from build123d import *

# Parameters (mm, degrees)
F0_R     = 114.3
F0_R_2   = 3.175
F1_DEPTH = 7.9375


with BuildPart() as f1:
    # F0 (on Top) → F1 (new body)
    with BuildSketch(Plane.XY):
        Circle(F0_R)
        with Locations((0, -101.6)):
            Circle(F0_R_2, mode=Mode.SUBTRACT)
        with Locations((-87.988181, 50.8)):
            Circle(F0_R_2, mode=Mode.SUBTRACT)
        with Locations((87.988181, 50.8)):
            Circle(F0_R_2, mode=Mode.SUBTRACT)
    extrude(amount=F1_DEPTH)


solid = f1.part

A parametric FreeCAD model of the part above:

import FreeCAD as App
import Part
import Sketcher

V = App.Vector
Q = App.Units.Quantity

doc = App.newDocument("Part")
body = doc.addObject("PartDesign::Body", "Body")

sketch1 = body.newObject("Sketcher::SketchObject", "Sketch")
sketch1.AttachmentSupport = (doc.getObject("XY_Plane"), [""])
sketch1.MapMode = "FlatFace"
sketch1.addGeometry([
    Part.Circle(V(0, 0, 0), V(0, 0, 1), 114.3),
    Part.Circle(V(0, -101.6, 0), V(0, 0, 1), 3.2),
    Part.Circle(V(-88, 50.8, 0), V(0, 0, 1), 3.2),
    Part.Circle(V(88, 50.8, 0), V(0, 0, 1), 3.2),
], False)
sketch1.addConstraint([
    Sketcher.Constraint("Coincident", 0, 3, -1, 1),
    Sketcher.Constraint("Equal", 1, 2),
    Sketcher.Constraint("Equal", 2, 3),
    Sketcher.Constraint("Symmetric", 2, 3, 3, 3, -2),
    Sketcher.Constraint("PointOnObject", 1, 3, -2),
    Sketcher.Constraint("Diameter", 0, Q("9 in")),
    Sketcher.Constraint("Diameter", 1, Q("0.25 in")),
    Sketcher.Constraint("DistanceY", 1, 3, -1, 1, Q("4 in")),
    Sketcher.Constraint("DistanceY", -1, 1, 2, 3, Q("2 in")),
    Sketcher.Constraint("DistanceX", 2, 3, -1, 1, 87.988181),
])
pad1 = body.newObject("PartDesign::Pad", "Pad")
pad1.Profile = sketch1
pad1.Length = Q("0.3125 in")

doc.recompute()
